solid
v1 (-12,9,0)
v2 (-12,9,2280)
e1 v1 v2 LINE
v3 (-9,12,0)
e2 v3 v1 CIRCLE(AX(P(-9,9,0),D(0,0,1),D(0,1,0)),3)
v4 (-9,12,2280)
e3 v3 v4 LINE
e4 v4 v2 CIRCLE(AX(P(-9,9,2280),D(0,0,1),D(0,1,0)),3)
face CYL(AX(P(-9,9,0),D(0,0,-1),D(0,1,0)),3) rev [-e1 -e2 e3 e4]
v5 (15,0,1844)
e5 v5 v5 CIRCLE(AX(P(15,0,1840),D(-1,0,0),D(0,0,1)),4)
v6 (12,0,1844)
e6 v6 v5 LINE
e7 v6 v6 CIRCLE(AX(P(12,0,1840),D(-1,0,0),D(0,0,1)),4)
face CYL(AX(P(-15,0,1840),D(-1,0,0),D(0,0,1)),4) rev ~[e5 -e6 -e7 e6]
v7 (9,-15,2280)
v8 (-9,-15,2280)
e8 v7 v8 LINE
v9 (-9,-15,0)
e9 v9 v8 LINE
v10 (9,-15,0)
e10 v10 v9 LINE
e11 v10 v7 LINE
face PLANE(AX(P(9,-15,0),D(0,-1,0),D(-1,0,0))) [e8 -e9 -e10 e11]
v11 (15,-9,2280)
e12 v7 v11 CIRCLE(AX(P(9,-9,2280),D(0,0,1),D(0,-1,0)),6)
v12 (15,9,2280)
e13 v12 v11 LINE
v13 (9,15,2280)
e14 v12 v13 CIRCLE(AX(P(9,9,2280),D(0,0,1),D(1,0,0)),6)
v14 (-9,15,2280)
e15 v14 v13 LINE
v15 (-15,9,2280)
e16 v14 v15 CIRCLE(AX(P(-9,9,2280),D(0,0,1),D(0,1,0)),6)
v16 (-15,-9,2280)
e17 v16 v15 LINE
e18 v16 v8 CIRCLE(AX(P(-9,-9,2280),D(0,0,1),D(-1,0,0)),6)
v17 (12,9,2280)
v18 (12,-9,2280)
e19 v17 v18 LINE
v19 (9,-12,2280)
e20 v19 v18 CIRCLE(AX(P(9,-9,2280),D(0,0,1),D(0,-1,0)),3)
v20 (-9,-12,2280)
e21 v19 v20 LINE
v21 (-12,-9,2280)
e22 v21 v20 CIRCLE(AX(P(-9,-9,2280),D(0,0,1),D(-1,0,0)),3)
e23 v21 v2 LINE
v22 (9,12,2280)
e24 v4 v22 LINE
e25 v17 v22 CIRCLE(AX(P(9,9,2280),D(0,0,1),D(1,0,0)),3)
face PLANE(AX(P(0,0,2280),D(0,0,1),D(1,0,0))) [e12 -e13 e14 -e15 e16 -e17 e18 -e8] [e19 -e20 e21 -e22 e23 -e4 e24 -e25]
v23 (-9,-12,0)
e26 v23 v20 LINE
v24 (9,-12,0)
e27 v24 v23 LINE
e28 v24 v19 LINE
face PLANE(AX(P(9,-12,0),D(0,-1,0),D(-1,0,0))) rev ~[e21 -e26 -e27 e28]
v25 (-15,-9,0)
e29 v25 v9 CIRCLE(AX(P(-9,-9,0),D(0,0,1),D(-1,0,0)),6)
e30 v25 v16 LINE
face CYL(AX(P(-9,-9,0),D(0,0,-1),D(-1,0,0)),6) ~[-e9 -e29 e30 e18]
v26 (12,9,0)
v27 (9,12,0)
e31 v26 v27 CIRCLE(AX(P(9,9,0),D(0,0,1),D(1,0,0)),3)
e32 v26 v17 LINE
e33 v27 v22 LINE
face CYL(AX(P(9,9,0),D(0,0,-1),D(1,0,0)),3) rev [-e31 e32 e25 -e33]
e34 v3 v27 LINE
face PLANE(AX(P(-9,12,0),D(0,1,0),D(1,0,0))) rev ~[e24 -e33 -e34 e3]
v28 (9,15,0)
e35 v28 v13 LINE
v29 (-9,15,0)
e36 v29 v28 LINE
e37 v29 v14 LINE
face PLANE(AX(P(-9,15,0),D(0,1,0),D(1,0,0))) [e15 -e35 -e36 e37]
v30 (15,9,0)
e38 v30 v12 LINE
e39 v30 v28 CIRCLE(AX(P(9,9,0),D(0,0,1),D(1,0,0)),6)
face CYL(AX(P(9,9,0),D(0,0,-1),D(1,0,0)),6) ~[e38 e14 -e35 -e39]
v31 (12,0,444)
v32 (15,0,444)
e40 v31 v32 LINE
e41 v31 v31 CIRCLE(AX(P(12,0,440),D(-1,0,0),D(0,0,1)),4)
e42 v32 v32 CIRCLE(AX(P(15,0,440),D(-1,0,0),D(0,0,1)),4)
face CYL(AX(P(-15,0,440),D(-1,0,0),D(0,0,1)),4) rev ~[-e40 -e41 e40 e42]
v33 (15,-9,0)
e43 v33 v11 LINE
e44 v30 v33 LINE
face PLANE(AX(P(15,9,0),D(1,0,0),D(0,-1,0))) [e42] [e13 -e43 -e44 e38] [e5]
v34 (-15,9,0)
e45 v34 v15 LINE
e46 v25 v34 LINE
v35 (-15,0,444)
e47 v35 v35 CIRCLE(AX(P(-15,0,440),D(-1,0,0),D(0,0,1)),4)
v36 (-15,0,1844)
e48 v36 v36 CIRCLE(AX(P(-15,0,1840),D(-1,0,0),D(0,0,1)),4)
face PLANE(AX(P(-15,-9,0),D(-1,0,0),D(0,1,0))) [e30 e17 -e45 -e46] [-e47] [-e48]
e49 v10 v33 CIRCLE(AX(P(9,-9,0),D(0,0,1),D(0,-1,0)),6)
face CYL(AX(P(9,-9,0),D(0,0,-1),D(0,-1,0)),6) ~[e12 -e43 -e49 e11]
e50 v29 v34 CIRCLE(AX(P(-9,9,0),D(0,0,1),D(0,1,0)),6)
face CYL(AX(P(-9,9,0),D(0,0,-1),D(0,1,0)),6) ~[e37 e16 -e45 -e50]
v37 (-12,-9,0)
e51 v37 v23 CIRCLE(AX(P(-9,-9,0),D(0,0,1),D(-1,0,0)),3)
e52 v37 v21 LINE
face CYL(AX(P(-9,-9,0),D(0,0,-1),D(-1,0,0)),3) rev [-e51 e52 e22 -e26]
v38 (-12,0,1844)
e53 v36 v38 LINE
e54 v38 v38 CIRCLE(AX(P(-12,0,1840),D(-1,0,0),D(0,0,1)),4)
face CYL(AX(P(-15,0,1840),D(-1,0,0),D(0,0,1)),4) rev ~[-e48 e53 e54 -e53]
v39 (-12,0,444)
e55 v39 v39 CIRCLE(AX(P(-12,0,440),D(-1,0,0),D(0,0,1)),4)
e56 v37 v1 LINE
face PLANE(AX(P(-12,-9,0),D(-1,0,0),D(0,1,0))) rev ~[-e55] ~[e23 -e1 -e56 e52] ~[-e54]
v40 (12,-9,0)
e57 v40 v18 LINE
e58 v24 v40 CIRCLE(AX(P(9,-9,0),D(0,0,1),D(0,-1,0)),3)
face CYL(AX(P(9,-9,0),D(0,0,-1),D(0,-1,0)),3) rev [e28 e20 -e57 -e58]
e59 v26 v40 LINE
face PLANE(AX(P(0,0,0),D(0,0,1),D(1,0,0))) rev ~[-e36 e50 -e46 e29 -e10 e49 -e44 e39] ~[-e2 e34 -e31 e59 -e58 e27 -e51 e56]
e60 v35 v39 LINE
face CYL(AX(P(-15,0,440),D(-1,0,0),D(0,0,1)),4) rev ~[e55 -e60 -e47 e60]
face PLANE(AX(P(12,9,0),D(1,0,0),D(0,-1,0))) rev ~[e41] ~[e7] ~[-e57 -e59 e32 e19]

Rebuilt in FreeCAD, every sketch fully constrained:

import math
import FreeCAD as App
import Part
import Sketcher
from FreeCAD import Vector

doc = App.newDocument("Part")
body = doc.addObject("PartDesign::Body", "Body")

# Sketch on XY plane
sketch1 = body.newObject("Sketcher::SketchObject", "Sketch")
sketch1.AttachmentSupport = (doc.getObject("XY_Plane"), [""])
sketch1.MapMode = "FlatFace"
sketch1.addGeometry(Part.LineSegment(Vector(-15, 9, 0), Vector(-15, -9, 0)), False)
sketch1.addGeometry(Part.ArcOfCircle(Part.Circle(Vector(-9, -9, 0), Vector(0, 0, 1), 6), math.radians(180), math.radians(270)), False)
sketch1.addGeometry(Part.LineSegment(Vector(-9, -15, 0), Vector(9, -15, 0)), False)
sketch1.addGeometry(Part.ArcOfCircle(Part.Circle(Vector(9, -9, 0), Vector(0, 0, 1), 6), math.radians(-90), math.radians(0)), False)
sketch1.addGeometry(Part.LineSegment(Vector(15, -9, 0), Vector(15, 9, 0)), False)
sketch1.addGeometry(Part.ArcOfCircle(Part.Circle(Vector(9, 9, 0), Vector(0, 0, 1), 6), math.radians(0), math.radians(90)), False)
sketch1.addGeometry(Part.LineSegment(Vector(9, 15, 0), Vector(-9, 15, 0)), False)
sketch1.addGeometry(Part.ArcOfCircle(Part.Circle(Vector(-9, 9, 0), Vector(0, 0, 1), 6), math.radians(90), math.radians(180)), False)
sketch1.addGeometry(Part.ArcOfCircle(Part.Circle(Vector(-9, 9, 0), Vector(0, 0, 1), 3), math.radians(90), math.radians(180)), False)
sketch1.addGeometry(Part.LineSegment(Vector(-9, 12, 0), Vector(9, 12, 0)), False)
sketch1.addGeometry(Part.ArcOfCircle(Part.Circle(Vector(9, 9, 0), Vector(0, 0, 1), 3), math.radians(0), math.radians(90)), False)
sketch1.addGeometry(Part.LineSegment(Vector(12, 9, 0), Vector(12, -9, 0)), False)
sketch1.addGeometry(Part.ArcOfCircle(Part.Circle(Vector(9, -9, 0), Vector(0, 0, 1), 3), math.radians(-90), math.radians(0)), False)
sketch1.addGeometry(Part.LineSegment(Vector(9, -12, 0), Vector(-9, -12, 0)), False)
sketch1.addGeometry(Part.ArcOfCircle(Part.Circle(Vector(-9, -9, 0), Vector(0, 0, 1), 3), math.radians(180), math.radians(270)), False)
sketch1.addGeometry(Part.LineSegment(Vector(-12, -9, 0), Vector(-12, 9, 0)), False)
sketch1.addConstraint(Sketcher.Constraint("Tangent", 0, 2, 1, 1))
sketch1.addConstraint(Sketcher.Constraint("Tangent", 1, 2, 2, 1))
sketch1.addConstraint(Sketcher.Constraint("Tangent", 2, 2, 3, 1))
sketch1.addConstraint(Sketcher.Constraint("Tangent", 3, 2, 4, 1))
sketch1.addConstraint(Sketcher.Constraint("Tangent", 4, 2, 5, 1))
sketch1.addConstraint(Sketcher.Constraint("Tangent", 5, 2, 6, 1))
sketch1.addConstraint(Sketcher.Constraint("Tangent", 6, 2, 7, 1))
sketch1.addConstraint(Sketcher.Constraint("Tangent", 7, 2, 0, 1))
sketch1.addConstraint(Sketcher.Constraint("Tangent", 8, 1, 9, 1))
sketch1.addConstraint(Sketcher.Constraint("Tangent", 9, 2, 10, 2))
sketch1.addConstraint(Sketcher.Constraint("Tangent", 10, 1, 11, 1))
sketch1.addConstraint(Sketcher.Constraint("Tangent", 11, 2, 12, 2))
sketch1.addConstraint(Sketcher.Constraint("Tangent", 12, 1, 13, 1))
sketch1.addConstraint(Sketcher.Constraint("Tangent", 13, 2, 14, 2))
sketch1.addConstraint(Sketcher.Constraint("Tangent", 14, 1, 15, 1))
sketch1.addConstraint(Sketcher.Constraint("Tangent", 15, 2, 8, 2))
sketch1.addConstraint(Sketcher.Constraint("Vertical", 0))
sketch1.addConstraint(Sketcher.Constraint("Horizontal", 2))
sketch1.addConstraint(Sketcher.Constraint("Vertical", 4))
sketch1.addConstraint(Sketcher.Constraint("Horizontal", 6))
sketch1.addConstraint(Sketcher.Constraint("Horizontal", 9))
sketch1.addConstraint(Sketcher.Constraint("Vertical", 11))
sketch1.addConstraint(Sketcher.Constraint("Horizontal", 13))
sketch1.addConstraint(Sketcher.Constraint("Vertical", 15))
sketch1.addConstraint(Sketcher.Constraint("Coincident", 8, 3, 7, 3))
sketch1.addConstraint(Sketcher.Constraint("Coincident", 10, 3, 5, 3))
sketch1.addConstraint(Sketcher.Constraint("Coincident", 12, 3, 3, 3))
sketch1.addConstraint(Sketcher.Constraint("Equal", 1, 3))
sketch1.addConstraint(Sketcher.Constraint("Equal", 3, 5))
sketch1.addConstraint(Sketcher.Constraint("Equal", 5, 7))
sketch1.addConstraint(Sketcher.Constraint("Equal", 12, 14))
sketch1.addConstraint(Sketcher.Constraint("Symmetric", 1, 3, 5, 3, -1, 1))
sketch1.addConstraint(Sketcher.Constraint("Equal", 13, 0))
sketch1.addConstraint(Sketcher.Constraint("Radius", 1, 6.0))
sketch1.addConstraint(Sketcher.Constraint("Radius", 8, 3.0))
sketch1.addConstraint(Sketcher.Constraint("DistanceX", 0, 2, -1, 1, 15.0))
pad1 = body.newObject("PartDesign::Pad", "Pad")
pad1.Profile = sketch1
pad1.Length = 2280

# Sketch on YZ plane
sketch2 = body.newObject("Sketcher::SketchObject", "Sketch001")
sketch2.AttachmentSupport = (doc.getObject("YZ_Plane"), [""])
sketch2.MapMode = "FlatFace"
sketch2.AttachmentOffset = App.Placement(Vector(0, 0, -15), App.Rotation())
sketch2.addGeometry(Part.Circle(Vector(0, 1840, 0), Vector(0, 0, 1), 4), False)
sketch2.addGeometry(Part.Circle(Vector(0, 440, 0), Vector(0, 0, 1), 4), False)
sketch2.addConstraint(Sketcher.Constraint("Equal", 0, 1))
sketch2.addConstraint(Sketcher.Constraint("PointOnObject", 0, 3, -2))
sketch2.addConstraint(Sketcher.Constraint("PointOnObject", 1, 3, -2))
sketch2.addConstraint(Sketcher.Constraint("Diameter", 0, 8.0))
sketch2.addConstraint(Sketcher.Constraint("DistanceY", -1, 1, 1, 3, 440.0))
sketch2.addConstraint(Sketcher.Constraint("DistanceY", -1, 1, 0, 3, 1840.0))
pocket1 = body.newObject("PartDesign::Pocket", "Pocket")
pocket1.Profile = sketch2
pocket1.Type = "ThroughAll"
pocket1.Reversed = True

doc.recompute()
